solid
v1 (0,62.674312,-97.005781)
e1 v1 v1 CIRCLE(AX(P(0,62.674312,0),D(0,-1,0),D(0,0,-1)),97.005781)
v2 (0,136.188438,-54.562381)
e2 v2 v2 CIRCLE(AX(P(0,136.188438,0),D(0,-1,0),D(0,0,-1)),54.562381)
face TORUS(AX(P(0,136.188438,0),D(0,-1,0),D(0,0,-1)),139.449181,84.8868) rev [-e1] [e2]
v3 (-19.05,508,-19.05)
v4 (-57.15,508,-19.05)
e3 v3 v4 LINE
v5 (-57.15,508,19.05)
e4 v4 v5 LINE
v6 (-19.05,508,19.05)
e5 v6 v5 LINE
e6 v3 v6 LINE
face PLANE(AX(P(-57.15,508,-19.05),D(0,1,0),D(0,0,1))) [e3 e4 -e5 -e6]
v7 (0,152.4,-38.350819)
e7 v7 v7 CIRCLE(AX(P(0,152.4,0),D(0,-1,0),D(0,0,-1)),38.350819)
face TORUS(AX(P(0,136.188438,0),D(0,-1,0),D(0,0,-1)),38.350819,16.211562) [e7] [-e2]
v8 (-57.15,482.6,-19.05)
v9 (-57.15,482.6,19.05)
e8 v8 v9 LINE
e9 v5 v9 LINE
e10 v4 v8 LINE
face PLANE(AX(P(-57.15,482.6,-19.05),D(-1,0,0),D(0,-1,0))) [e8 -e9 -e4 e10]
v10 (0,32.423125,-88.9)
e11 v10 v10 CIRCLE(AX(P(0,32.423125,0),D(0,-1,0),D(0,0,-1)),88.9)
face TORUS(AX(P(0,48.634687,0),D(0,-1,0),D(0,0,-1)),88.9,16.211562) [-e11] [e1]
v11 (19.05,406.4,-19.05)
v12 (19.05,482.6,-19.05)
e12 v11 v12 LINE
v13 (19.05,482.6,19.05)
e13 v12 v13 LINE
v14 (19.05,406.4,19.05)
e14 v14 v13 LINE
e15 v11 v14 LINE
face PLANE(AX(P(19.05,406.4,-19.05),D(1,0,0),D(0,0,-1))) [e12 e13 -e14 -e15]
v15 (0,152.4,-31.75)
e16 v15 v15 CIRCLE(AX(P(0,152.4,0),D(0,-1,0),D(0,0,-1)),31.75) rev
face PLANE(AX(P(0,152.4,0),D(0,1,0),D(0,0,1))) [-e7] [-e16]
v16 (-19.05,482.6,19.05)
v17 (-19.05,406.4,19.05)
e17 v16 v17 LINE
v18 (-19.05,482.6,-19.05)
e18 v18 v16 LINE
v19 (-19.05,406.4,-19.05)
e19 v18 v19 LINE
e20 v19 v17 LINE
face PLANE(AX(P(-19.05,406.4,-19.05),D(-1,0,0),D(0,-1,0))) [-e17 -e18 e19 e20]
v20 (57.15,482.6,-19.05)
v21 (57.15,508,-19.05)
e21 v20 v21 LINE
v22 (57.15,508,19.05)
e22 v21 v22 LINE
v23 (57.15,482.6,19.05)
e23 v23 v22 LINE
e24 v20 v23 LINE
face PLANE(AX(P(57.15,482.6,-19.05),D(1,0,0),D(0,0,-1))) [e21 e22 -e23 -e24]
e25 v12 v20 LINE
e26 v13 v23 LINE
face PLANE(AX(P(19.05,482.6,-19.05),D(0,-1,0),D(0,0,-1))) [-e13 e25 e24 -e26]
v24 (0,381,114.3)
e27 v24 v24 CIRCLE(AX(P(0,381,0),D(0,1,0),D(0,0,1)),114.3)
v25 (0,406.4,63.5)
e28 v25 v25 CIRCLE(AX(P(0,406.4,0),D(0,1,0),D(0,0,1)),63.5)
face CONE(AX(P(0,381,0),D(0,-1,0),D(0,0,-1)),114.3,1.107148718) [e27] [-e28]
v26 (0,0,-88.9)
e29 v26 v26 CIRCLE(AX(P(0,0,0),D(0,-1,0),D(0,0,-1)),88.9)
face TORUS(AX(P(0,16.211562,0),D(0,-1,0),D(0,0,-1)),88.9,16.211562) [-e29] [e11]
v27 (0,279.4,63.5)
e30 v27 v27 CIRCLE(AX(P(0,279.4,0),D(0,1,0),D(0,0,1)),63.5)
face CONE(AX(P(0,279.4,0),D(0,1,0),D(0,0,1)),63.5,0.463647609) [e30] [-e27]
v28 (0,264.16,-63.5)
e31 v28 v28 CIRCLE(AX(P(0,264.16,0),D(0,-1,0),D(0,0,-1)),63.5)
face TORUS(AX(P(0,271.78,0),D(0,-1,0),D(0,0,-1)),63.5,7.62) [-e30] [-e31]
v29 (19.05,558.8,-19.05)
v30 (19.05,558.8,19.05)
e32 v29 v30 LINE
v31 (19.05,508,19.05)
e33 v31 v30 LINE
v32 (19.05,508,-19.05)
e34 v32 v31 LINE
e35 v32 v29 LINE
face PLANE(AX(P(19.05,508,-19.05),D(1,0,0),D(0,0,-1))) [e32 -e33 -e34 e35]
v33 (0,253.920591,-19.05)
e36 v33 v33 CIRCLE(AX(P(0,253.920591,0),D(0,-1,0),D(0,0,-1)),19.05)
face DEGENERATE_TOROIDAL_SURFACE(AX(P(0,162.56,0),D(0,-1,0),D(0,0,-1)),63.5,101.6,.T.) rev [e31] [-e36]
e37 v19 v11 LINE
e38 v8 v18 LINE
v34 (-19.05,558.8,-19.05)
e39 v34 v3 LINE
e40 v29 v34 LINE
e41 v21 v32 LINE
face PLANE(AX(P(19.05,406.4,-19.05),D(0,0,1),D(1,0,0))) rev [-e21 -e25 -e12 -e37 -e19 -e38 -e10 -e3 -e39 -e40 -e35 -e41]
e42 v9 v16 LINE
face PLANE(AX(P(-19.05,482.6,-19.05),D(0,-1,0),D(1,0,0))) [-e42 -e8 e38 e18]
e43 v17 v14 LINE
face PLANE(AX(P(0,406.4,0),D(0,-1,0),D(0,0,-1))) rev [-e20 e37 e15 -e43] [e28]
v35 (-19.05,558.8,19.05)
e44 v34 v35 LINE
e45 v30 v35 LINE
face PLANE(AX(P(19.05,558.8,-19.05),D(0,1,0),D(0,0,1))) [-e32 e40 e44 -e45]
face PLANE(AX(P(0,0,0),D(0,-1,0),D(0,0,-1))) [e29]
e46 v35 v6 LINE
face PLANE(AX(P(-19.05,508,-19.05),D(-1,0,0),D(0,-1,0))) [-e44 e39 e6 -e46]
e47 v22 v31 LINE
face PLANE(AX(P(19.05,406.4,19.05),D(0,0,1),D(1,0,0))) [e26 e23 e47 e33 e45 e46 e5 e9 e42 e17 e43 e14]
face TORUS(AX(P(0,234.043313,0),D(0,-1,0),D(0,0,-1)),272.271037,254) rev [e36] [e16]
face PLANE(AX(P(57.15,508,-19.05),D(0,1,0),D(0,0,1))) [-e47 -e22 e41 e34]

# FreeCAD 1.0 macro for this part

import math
import FreeCAD as App
import Part
import Sketcher
Q = App.Units.Quantity


def add_polygon(sketch, points):
    """Adds a closed chain of lines whose ends are joined by coincident constraints."""
    first, n = sketch.GeometryCount, len(points)
    for a, b in zip(points, points[1:] + points[:1]):
        sketch.addGeometry(Part.LineSegment(App.Vector(*a, 0), App.Vector(*b, 0)), False)
    for i in range(n):
        sketch.addConstraint(Sketcher.Constraint("Coincident", first + i, 2, first + (i + 1) % n, 1))

doc = App.newDocument("Part")
params = doc.addObject("Spreadsheet::Sheet", "Params")
for row, (alias, value) in enumerate([
    ("sketch1_height", "6 in"),
    ("sketch1_width", "3.5 in"),
    ("sketch1_radius", "3.342 in"),
    ("revolution_angle", "360 deg"),
    ("sketch2_radius", "10 in"),
    ("sketch2_radius2", "4 in"),
    ("sketch2_radius3", "0.3 in"),
    ("sketch2_height", "5 in"),
    ("sketch2_width", "2.5 in"),
    ("revolution2_angle", "360 deg"),
    ("sketch3_height", "5 in"),
    ("sketch3_width", "2.5 in"),
    ("revolution3_angle", "360 deg"),
    ("sketch4_height", "3 in"),
    ("sketch4_height2", "1 in"),
    ("sketch4_height3", "2 in"),
    ("sketch4_width", "1.5 in"),
    ("pad1_length", "0.75 in"),
    ("pad1_length2", "0.75 in"),
], start=1):
    params.set(f"A{row}", alias)
    params.set(f"B{row}", "=" + value)
    params.setAlias(f"B{row}", alias)

body = doc.addObject("PartDesign::Body", "Body")

# Sketch on XY plane
sketch1 = doc.addObject("Sketcher::SketchObject", "Sketch")
body.addObject(sketch1)
sketch1.AttachmentSupport = (doc.XY_Plane, [""])
sketch1.MapMode = "FlatFace"
sketch1.addGeometry([
    Part.LineSegment(App.Vector(0, 0, 0), App.Vector(89, 0, 0)),  # 0
    Part.ArcOfCircle(Part.Circle(App.Vector(89, 16, 0), App.Vector(0, 0, 1), 16), math.radians(-90), math.radians(90)),  # 1
    Part.ArcOfCircle(Part.Circle(App.Vector(89, 49, 0), App.Vector(0, 0, 1), 16), math.radians(-90), math.radians(60)),  # 2
    Part.ArcOfCircle(Part.Circle(App.Vector(139, 136, 0), App.Vector(0, 0, 1), 85), math.radians(180), math.radians(240)),  # 3
    Part.ArcOfCircle(Part.Circle(App.Vector(38, 136, 0), App.Vector(0, 0, 1), 16), math.radians(0), math.radians(90)),  # 4
    Part.LineSegment(App.Vector(38, 152, 0), App.Vector(0, 152, 0)),  # 5
    Part.LineSegment(App.Vector(0, 152, 0), App.Vector(0, 0, 0)),  # 6
], False)
sketch1.addConstraint([
    Sketcher.Constraint("Tangent", 0, 2, 1, 1),
    Sketcher.Constraint("Tangent", 1, 2, 2, 1),
    Sketcher.Constraint("Tangent", 2, 2, 3, 2),
    Sketcher.Constraint("Tangent", 3, 1, 4, 1),
    Sketcher.Constraint("Tangent", 4, 2, 5, 1),
    Sketcher.Constraint("Coincident", 5, 2, 6, 1),
    Sketcher.Constraint("Coincident", 6, 2, 0, 1),
    Sketcher.Constraint("Horizontal", 0),
    Sketcher.Constraint("Horizontal", 5),
    Sketcher.Constraint("Vertical", 6),
    Sketcher.Constraint("Coincident", 6, 2, -1, 1),
    Sketcher.Constraint("Equal", 1, 2),
    Sketcher.Constraint("Equal", 2, 4),
    Sketcher.Constraint("Horizontal", 3, 3, 4, 3),
    Sketcher.Constraint("Vertical", 1, 3, 2, 3),
    Sketcher.Constraint("DistanceY", 6, 2, 6, 1, Q("6 in")),
    Sketcher.Constraint("DistanceX", 0, 1, 0, 2, Q("3.5 in")),
    Sketcher.Constraint("Radius", 3, Q("3.342 in")),
    Sketcher.Constraint("DistanceX", 2, 2, 3, 3, Q("1.671 in")),
])
sketch1.setExpression("Constraints[15]", "Params.sketch1_height")
sketch1.setExpression("Constraints[16]", "Params.sketch1_width")
sketch1.setExpression("Constraints[17]", "Params.sketch1_radius")
revolution = doc.addObject("PartDesign::Revolution", "Revolution")
body.addObject(revolution)
revolution.Profile = sketch1
revolution.ReferenceAxis = (sketch1, ["V_Axis"])
revolution.setExpression("Angle", "Params.revolution_angle")

# Sketch on XY plane
sketch2 = doc.addObject("Sketcher::SketchObject", "Sketch001")
body.addObject(sketch2)
sketch2.AttachmentSupport = (doc.XY_Plane, [""])
sketch2.MapMode = "FlatFace"
sketch2.addGeometry([
    Part.LineSegment(App.Vector(0, 279, 0), App.Vector(0, 152, 0)),  # 0
    Part.LineSegment(App.Vector(0, 152, 0), App.Vector(32, 152, 0)),  # 1
    Part.ArcOfCircle(Part.Circle(App.Vector(272, 234, 0), App.Vector(0, 0, 1), 254), math.radians(176), math.radians(199)),  # 2
    Part.ArcOfCircle(Part.Circle(App.Vector(64, 163, 0), App.Vector(0, 0, 1), 102), math.radians(90), math.radians(116)),  # 3
    Part.ArcOfCircle(Part.Circle(App.Vector(64, 272, 0), App.Vector(0, 0, 1), 8), math.radians(-90), math.radians(90)),  # 4
    Part.LineSegment(App.Vector(64, 279, 0), App.Vector(0, 279, 0)),  # 5
], False)
sketch2.addConstraint([
    Sketcher.Constraint("Coincident", 0, 2, 1, 1),
    Sketcher.Constraint("Coincident", 1, 2, 2, 2),
    Sketcher.Constraint("Coincident", 2, 1, 3, 2),
    Sketcher.Constraint("Tangent", 3, 1, 4, 1),
    Sketcher.Constraint("Tangent", 4, 2, 5, 1),
    Sketcher.Constraint("Coincident", 5, 2, 0, 1),
    Sketcher.Constraint("Vertical", 0),
    Sketcher.Constraint("Horizontal", 1),
    Sketcher.Constraint("Horizontal", 5),
    Sketcher.Constraint("PointOnObject", 0, 2, -2),
    Sketcher.Constraint("Vertical", 3, 3, 4, 3),
    Sketcher.Constraint("Radius", 2, Q("10 in")),
    Sketcher.Constraint("Radius", 3, Q("4 in")),
    Sketcher.Constraint("Radius", 4, Q("0.3 in")),
    Sketcher.Constraint("DistanceY", 0, 2, 0, 1, Q("5 in")),
    Sketcher.Constraint("DistanceX", 5, 2, 5, 1, Q("2.5 in")),
    Sketcher.Constraint("DistanceY", -1, 1, 0, 2, Q("6 in")),
    Sketcher.Constraint("DistanceX", 1, 1, 1, 2, Q("1.25 in")),
    Sketcher.Constraint("DistanceX", 2, 1, 1, 2, Q("0.5 in")),
])
sketch2.setExpression("Constraints[11]", "Params.sketch2_radius")
sketch2.setExpression("Constraints[12]", "Params.sketch2_radius2")
sketch2.setExpression("Constraints[13]", "Params.sketch2_radius3")
sketch2.setExpression("Constraints[14]", "Params.sketch2_height")
sketch2.setExpression("Constraints[15]", "Params.sketch2_width")
revolution2 = doc.addObject("PartDesign::Revolution", "Revolution001")
body.addObject(revolution2)
revolution2.Profile = sketch2
revolution2.ReferenceAxis = (sketch2, ["V_Axis"])
revolution2.setExpression("Angle", "Params.revolution2_angle")

# Sketch on XY plane
sketch3 = doc.addObject("Sketcher::SketchObject", "Sketch002")
body.addObject(sketch3)
sketch3.AttachmentSupport = (doc.XY_Plane, [""])
sketch3.MapMode = "FlatFace"
add_polygon(sketch3, [(0, 406), (0, 279), (64, 279), (114, 381), (64, 406)])  # lines 0-4
sketch3.addConstraint([
    Sketcher.Constraint("Vertical", 0),
    Sketcher.Constraint("Horizontal", 1),
    Sketcher.Constraint("Horizontal", 4),
    Sketcher.Constraint("PointOnObject", 0, 2, -2),
    Sketcher.Constraint("Perpendicular", 2, 3),
    Sketcher.Constraint("Vertical", 1, 2, 3, 2),
    Sketcher.Constraint("DistanceY", 0, 2, 0, 1, Q("5 in")),
    Sketcher.Constraint("DistanceX", 1, 1, 1, 2, Q("2.5 in")),
    Sketcher.Constraint("DistanceY", -1, 1, 0, 2, Q("11 in")),
    Sketcher.Constraint("DistanceY", -1, 1, 2, 2, Q("15 in")),
])
sketch3.setExpression("Constraints[11]", "Params.sketch3_height")
sketch3.setExpression("Constraints[12]", "Params.sketch3_width")
revolution3 = doc.addObject("PartDesign::Revolution", "Revolution002")
body.addObject(revolution3)
revolution3.Profile = sketch3
revolution3.ReferenceAxis = (sketch3, ["V_Axis"])
revolution3.setExpression("Angle", "Params.revolution3_angle")

# Sketch on XY plane
sketch4 = doc.addObject("Sketcher::SketchObject", "Sketch003")
body.addObject(sketch4)
sketch4.AttachmentSupport = (doc.XY_Plane, [""])
sketch4.MapMode = "FlatFace"
add_polygon(sketch4, [(19, 406), (19, 483), (57, 483), (57, 508), (19, 508), (19, 559), (-19, 559), (-19, 508), (-57, 508), (-57, 483), (-19, 483), (-19, 406)])  # lines 0-11
sketch4.addConstraint([
    Sketcher.Constraint("Vertical", 0),
    Sketcher.Constraint("Horizontal", 1),
    Sketcher.Constraint("Vertical", 2),
    Sketcher.Constraint("Horizontal", 3),
    Sketcher.Constraint("Vertical", 4),
    Sketcher.Constraint("Horizontal", 5),
    Sketcher.Constraint("Vertical", 6),
    Sketcher.Constraint("Horizontal", 7),
    Sketcher.Constraint("Vertical", 8),
    Sketcher.Constraint("Horizontal", 9),
    Sketcher.Constraint("Vertical", 10),
    Sketcher.Constraint("Horizontal", 11),
    Sketcher.Constraint("Symmetric", 3, 2, 6, 2, -2),
    Sketcher.Constraint("Symmetric", 1, 2, 8, 2, -2),
    Sketcher.Constraint("Vertical", 0, 2, 3, 2),
    Sketcher.Constraint("Vertical", 6, 2, 9, 2),
    Sketcher.Constraint("Equal", 3, 5),
    Sketcher.Constraint("DistanceY", 0, 1, 0, 2, Q("3 in")),
    Sketcher.Constraint("DistanceY", 2, 1, 2, 2, Q("1 in")),
    Sketcher.Constraint("DistanceY", 4, 1, 4, 2, Q("2 in")),
    Sketcher.Constraint("DistanceX", 1, 1, 1, 2, Q("1.5 in")),
    Sketcher.Constraint("DistanceY", -1, 1, 0, 2, Q("19 in")),
])
sketch4.setExpression("Constraints[29]", "Params.sketch4_height")
sketch4.setExpression("Constraints[30]", "Params.sketch4_height2")
sketch4.setExpression("Constraints[31]", "Params.sketch4_height3")
sketch4.setExpression("Constraints[32]", "Params.sketch4_width")
pad1 = doc.addObject("PartDesign::Pad", "Pad")
body.addObject(pad1)
pad1.Profile = sketch4
pad1.Type = "TwoLengths"
pad1.setExpression("Length", "Params.pad1_length")
pad1.setExpression("Length2", "Params.pad1_length2")

doc.recompute()
